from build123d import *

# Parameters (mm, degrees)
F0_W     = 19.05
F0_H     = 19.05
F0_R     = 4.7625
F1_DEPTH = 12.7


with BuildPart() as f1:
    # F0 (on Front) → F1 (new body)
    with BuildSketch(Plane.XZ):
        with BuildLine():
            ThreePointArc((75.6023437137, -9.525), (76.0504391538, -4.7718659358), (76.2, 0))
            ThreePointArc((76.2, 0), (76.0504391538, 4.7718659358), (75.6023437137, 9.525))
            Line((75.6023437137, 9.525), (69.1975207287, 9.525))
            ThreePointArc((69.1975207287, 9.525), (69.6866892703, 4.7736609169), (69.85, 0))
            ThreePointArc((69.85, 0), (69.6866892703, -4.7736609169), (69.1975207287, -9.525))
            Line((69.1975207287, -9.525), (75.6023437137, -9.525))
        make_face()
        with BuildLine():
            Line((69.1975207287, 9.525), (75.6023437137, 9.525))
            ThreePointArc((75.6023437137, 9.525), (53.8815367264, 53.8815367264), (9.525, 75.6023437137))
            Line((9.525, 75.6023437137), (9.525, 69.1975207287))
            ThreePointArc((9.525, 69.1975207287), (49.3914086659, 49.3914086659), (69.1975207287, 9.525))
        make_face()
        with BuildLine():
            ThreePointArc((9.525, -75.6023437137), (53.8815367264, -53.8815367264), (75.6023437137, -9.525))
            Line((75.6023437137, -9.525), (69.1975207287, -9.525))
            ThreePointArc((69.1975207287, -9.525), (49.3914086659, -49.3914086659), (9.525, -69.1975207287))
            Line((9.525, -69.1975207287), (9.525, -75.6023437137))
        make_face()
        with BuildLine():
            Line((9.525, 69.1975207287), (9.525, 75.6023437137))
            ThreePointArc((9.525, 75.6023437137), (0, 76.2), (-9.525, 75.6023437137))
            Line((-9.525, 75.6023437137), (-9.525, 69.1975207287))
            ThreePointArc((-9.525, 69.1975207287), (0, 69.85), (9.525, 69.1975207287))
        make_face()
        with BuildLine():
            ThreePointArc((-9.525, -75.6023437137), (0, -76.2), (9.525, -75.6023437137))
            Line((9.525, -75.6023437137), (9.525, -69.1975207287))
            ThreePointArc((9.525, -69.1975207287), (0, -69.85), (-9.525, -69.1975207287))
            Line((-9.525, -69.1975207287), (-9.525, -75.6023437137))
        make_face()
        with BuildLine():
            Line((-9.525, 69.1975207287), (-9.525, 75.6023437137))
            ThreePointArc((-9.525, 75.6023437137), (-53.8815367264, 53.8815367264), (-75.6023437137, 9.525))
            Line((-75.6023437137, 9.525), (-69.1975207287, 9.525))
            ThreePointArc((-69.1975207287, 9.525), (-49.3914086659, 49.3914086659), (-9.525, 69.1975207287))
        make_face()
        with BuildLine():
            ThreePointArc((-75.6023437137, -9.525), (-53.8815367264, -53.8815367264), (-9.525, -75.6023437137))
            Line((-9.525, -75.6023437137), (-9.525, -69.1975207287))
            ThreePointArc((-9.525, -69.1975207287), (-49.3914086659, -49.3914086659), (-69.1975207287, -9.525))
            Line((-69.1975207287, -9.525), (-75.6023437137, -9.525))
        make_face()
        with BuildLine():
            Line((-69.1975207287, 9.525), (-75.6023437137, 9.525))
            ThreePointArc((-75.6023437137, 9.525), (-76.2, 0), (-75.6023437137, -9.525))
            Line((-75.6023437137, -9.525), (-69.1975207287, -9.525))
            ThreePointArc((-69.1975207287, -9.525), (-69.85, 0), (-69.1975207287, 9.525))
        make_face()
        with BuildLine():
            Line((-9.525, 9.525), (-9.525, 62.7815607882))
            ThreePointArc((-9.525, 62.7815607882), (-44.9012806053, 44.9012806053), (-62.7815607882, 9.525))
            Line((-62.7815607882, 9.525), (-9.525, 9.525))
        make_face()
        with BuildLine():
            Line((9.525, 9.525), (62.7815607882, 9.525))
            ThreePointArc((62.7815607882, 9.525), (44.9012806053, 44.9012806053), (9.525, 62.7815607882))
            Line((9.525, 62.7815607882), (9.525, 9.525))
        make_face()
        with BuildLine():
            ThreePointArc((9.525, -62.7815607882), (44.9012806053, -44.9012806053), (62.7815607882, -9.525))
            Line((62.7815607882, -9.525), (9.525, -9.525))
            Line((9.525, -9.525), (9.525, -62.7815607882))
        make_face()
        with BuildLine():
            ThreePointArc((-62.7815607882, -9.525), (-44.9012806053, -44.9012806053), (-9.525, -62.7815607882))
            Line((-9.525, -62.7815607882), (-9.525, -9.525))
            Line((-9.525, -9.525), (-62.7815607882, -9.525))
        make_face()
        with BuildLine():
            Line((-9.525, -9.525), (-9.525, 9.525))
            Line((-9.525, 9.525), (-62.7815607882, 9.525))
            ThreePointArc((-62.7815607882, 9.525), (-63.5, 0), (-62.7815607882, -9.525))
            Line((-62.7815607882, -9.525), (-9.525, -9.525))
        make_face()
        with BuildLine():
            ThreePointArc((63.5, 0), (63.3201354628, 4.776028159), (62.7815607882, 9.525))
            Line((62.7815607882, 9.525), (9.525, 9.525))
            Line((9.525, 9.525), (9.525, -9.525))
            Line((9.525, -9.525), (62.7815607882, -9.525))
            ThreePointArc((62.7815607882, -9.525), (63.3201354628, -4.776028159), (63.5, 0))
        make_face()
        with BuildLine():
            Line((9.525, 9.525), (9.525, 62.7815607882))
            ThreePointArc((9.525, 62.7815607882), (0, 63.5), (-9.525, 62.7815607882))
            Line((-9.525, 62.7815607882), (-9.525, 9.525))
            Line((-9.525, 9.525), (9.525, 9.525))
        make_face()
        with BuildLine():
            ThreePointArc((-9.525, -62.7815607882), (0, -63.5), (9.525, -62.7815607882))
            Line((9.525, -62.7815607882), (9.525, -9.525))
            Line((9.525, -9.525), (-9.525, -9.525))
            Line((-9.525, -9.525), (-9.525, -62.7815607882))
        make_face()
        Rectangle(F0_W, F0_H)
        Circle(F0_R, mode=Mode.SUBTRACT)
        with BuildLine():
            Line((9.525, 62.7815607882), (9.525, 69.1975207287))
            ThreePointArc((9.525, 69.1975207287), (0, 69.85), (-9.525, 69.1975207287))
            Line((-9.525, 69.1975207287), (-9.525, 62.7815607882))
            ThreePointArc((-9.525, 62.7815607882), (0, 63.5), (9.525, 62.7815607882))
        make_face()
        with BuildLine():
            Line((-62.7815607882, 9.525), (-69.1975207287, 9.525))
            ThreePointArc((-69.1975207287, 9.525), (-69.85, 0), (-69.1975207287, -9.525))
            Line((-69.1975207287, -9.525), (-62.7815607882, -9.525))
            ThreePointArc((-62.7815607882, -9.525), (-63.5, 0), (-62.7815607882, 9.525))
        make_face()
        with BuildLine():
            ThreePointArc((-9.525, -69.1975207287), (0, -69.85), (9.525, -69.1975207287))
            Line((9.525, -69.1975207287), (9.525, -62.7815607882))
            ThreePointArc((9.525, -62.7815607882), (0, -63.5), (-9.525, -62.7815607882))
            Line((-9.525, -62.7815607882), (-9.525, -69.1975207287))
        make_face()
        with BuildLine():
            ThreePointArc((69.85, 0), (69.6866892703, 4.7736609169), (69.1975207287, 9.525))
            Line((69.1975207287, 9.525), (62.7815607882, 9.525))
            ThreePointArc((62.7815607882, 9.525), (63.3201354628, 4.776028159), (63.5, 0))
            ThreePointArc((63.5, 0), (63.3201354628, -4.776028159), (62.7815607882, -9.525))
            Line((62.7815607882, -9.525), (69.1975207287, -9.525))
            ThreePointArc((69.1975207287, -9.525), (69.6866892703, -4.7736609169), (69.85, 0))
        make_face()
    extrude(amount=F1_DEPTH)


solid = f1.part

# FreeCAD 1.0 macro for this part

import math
import FreeCAD as App
import Part
import Sketcher

V = App.Vector
Q = App.Units.Quantity

doc = App.newDocument("Part")
body = doc.addObject("PartDesign::Body", "Body")

sketch1 = body.newObject("Sketcher::SketchObject", "Sketch")
sketch1.AttachmentSupport = (doc.getObject("XZ_Plane"), [""])
sketch1.MapMode = "FlatFace"
sketch1.addGeometry([
    Part.ArcOfCircle(Part.Circle(V(0, 0, 0), V(0, 0, 1), 76.2), math.radians(-7.18), math.radians(0)),
    Part.ArcOfCircle(Part.Circle(V(0, 0, 0), V(0, 0, 1), 76.2), math.radians(0), math.radians(7.18)),
    Part.ArcOfCircle(Part.Circle(V(0, 0, 0), V(0, 0, 1), 76.2), math.radians(7), math.radians(83)),
    Part.ArcOfCircle(Part.Circle(V(0, 0, 0), V(0, 0, 1), 76.2), math.radians(82.82), math.radians(97.18)),
    Part.ArcOfCircle(Part.Circle(V(0, 0, 0), V(0, 0, 1), 76.2), math.radians(97), math.radians(173)),
    Part.ArcOfCircle(Part.Circle(V(0, 0, 0), V(0, 0, 1), 76.2), math.radians(172.82), math.radians(187.18)),
    Part.ArcOfCircle(Part.Circle(V(0, 0, 0), V(0, 0, 1), 76.2), math.radians(-173), math.radians(-97)),
    Part.ArcOfCircle(Part.Circle(V(0, 0, 0), V(0, 0, 1), 76.2), math.radians(-97.18), math.radians(-82.82)),
    Part.ArcOfCircle(Part.Circle(V(0, 0, 0), V(0, 0, 1), 76.2), math.radians(-83), math.radians(-7)),
    Part.ArcOfCircle(Part.Circle(V(0, 0, 0), V(0, 0, 1), 69.8), math.radians(98), math.radians(172)),
    Part.LineSegment(V(-9.5, 69.2, 0), V(-9.5, 62.8, 0)),
    Part.ArcOfCircle(Part.Circle(V(0, 0, 0), V(0, 0, 1), 63.5), math.radians(99), math.radians(171)),
    Part.LineSegment(V(-62.8, 9.5, 0), V(-69.2, 9.5, 0)),
    Part.ArcOfCircle(Part.Circle(V(0, 0, 0), V(0, 0, 1), 63.5), math.radians(-171), math.radians(-99)),
    Part.LineSegment(V(-9.5, -62.8, 0), V(-9.5, -69.2, 0)),
    Part.ArcOfCircle(Part.Circle(V(0, 0, 0), V(0, 0, 1), 69.8), math.radians(-172), math.radians(-98)),
    Part.LineSegment(V(-69.2, -9.5, 0), V(-62.8, -9.5, 0)),
    Part.ArcOfCircle(Part.Circle(V(0, 0, 0), V(0, 0, 1), 63.5), math.radians(-81), math.radians(-9)),
    Part.LineSegment(V(62.8, -9.5, 0), V(69.2, -9.5, 0)),
    Part.ArcOfCircle(Part.Circle(V(0, 0, 0), V(0, 0, 1), 69.8), math.radians(-82), math.radians(-8)),
    Part.LineSegment(V(9.5, -69.2, 0), V(9.5, -62.8, 0)),
    Part.ArcOfCircle(Part.Circle(V(0, 0, 0), V(0, 0, 1), 63.5), math.radians(9), math.radians(81)),
    Part.LineSegment(V(9.5, 62.8, 0), V(9.5, 69.2, 0)),
    Part.ArcOfCircle(Part.Circle(V(0, 0, 0), V(0, 0, 1), 69.8), math.radians(8), math.radians(82)),
    Part.LineSegment(V(69.2, 9.5, 0), V(62.8, 9.5, 0)),
    Part.Circle(V(0, 0, 0), V(0, 0, 1), 4.8),
], False)
sketch1.addConstraint([
    Sketcher.Constraint("Tangent", 0, 2, 1, 1),
    Sketcher.Constraint("Tangent", 1, 2, 2, 1),
    Sketcher.Constraint("Tangent", 2, 2, 3, 1),
    Sketcher.Constraint("Tangent", 3, 2, 4, 1),
    Sketcher.Constraint("Tangent", 4, 2, 5, 1),
    Sketcher.Constraint("Tangent", 5, 2, 6, 1),
    Sketcher.Constraint("Tangent", 6, 2, 7, 1),
    Sketcher.Constraint("Tangent", 7, 2, 8, 1),
    Sketcher.Constraint("Tangent", 8, 2, 0, 1),
    Sketcher.Constraint("Coincident", 9, 1, 10, 1),
    Sketcher.Constraint("Coincident", 10, 2, 11, 1),
    Sketcher.Constraint("Coincident", 11, 2, 12, 1),
    Sketcher.Constraint("Coincident", 12, 2, 9, 2),
    Sketcher.Constraint("Coincident", 13, 2, 14, 1),
    Sketcher.Constraint("Coincident", 14, 2, 15, 2),
    Sketcher.Constraint("Coincident", 15, 1, 16, 1),
    Sketcher.Constraint("Coincident", 16, 2, 13, 1),
    Sketcher.Constraint("Coincident", 17, 2, 18, 1),
    Sketcher.Constraint("Coincident", 18, 2, 19, 2),
    Sketcher.Constraint("Coincident", 19, 1, 20, 1),
    Sketcher.Constraint("Coincident", 20, 2, 17, 1),
    Sketcher.Constraint("Coincident", 21, 2, 22, 1),
    Sketcher.Constraint("Coincident", 22, 2, 23, 2),
    Sketcher.Constraint("Coincident", 23, 1, 24, 1),
    Sketcher.Constraint("Coincident", 24, 2, 21, 1),
    Sketcher.Constraint("Vertical", 10),
    Sketcher.Constraint("Horizontal", 12),
    Sketcher.Constraint("Vertical", 14),
    Sketcher.Constraint("Horizontal", 16),
    Sketcher.Constraint("Horizontal", 18),
    Sketcher.Constraint("Vertical", 20),
    Sketcher.Constraint("Vertical", 22),
    Sketcher.Constraint("Horizontal", 24),
    Sketcher.Constraint("Coincident", 0, 3, -1, 1),
    Sketcher.Constraint("Coincident", 2, 3, -1, 1),
    Sketcher.Constraint("Coincident", 4, 3, -1, 1),
    Sketcher.Constraint("Coincident", 6, 3, -1, 1),
    Sketcher.Constraint("Coincident", 9, 3, -1, 1),
    Sketcher.Constraint("Coincident", 11, 3, -1, 1),
    Sketcher.Constraint("Coincident", 13, 3, -1, 1),
    Sketcher.Constraint("Coincident", 15, 3, -1, 1),
    Sketcher.Constraint("Coincident", 17, 3, -1, 1),
    Sketcher.Constraint("Coincident", 19, 3, -1, 1),
    Sketcher.Constraint("Coincident", 21, 3, -1, 1),
    Sketcher.Constraint("Coincident", 23, 3, -1, 1),
    Sketcher.Constraint("Coincident", 25, 3, -1, 1),
    Sketcher.Constraint("Equal", 11, 13),
    Sketcher.Constraint("Equal", 9, 15),
    Sketcher.Constraint("Equal", 13, 17),
    Sketcher.Constraint("Equal", 15, 19),
    Sketcher.Constraint("Equal", 17, 21),
    Sketcher.Constraint("Equal", 19, 23),
    Sketcher.Constraint("PointOnObject", 0, 2, -1),
    Sketcher.Constraint("Horizontal", 2, 2, 3, 2),
    Sketcher.Constraint("Horizontal", 1, 2, 4, 2),
    Sketcher.Constraint("Horizontal", 6, 2, 7, 2),
    Sketcher.Constraint("Horizontal", 5, 2, 8, 2),
    Sketcher.Constraint("Horizontal", 4, 2, 11, 2),
    Sketcher.Constraint("Horizontal", 8, 2, 15, 1),
    Sketcher.Constraint("Horizontal", 16, 2, 17, 2),
    Sketcher.Constraint("Horizontal", 14, 2, 19, 1),
    Sketcher.Constraint("Horizontal", 10, 2, 21, 2),
    Sketcher.Constraint("Horizontal", 12, 2, 23, 1),
    Sketcher.Constraint("Vertical", 4, 2, 5, 2),
    Sketcher.Constraint("Vertical", 3, 2, 6, 2),
    Sketcher.Constraint("Vertical", 6, 2, 9, 1),
    Sketcher.Constraint("Vertical", 10, 2, 13, 2),
    Sketcher.Constraint("Equal", 24, 10),
    Sketcher.Constraint("Radius", 0, Q("3 in")),
    Sketcher.Constraint("Radius", 11, Q("2.5 in")),
    Sketcher.Constraint("Radius", 9, Q("2.75 in")),
    Sketcher.Constraint("Diameter", 25, Q("0.375 in")),
    Sketcher.Constraint("DistanceX", 3, 2, 2, 2, Q("0.75 in")),
])
pad1 = body.newObject("PartDesign::Pad", "Pad")
pad1.Profile = sketch1
pad1.Length = Q("0.5 in")

doc.recompute()
